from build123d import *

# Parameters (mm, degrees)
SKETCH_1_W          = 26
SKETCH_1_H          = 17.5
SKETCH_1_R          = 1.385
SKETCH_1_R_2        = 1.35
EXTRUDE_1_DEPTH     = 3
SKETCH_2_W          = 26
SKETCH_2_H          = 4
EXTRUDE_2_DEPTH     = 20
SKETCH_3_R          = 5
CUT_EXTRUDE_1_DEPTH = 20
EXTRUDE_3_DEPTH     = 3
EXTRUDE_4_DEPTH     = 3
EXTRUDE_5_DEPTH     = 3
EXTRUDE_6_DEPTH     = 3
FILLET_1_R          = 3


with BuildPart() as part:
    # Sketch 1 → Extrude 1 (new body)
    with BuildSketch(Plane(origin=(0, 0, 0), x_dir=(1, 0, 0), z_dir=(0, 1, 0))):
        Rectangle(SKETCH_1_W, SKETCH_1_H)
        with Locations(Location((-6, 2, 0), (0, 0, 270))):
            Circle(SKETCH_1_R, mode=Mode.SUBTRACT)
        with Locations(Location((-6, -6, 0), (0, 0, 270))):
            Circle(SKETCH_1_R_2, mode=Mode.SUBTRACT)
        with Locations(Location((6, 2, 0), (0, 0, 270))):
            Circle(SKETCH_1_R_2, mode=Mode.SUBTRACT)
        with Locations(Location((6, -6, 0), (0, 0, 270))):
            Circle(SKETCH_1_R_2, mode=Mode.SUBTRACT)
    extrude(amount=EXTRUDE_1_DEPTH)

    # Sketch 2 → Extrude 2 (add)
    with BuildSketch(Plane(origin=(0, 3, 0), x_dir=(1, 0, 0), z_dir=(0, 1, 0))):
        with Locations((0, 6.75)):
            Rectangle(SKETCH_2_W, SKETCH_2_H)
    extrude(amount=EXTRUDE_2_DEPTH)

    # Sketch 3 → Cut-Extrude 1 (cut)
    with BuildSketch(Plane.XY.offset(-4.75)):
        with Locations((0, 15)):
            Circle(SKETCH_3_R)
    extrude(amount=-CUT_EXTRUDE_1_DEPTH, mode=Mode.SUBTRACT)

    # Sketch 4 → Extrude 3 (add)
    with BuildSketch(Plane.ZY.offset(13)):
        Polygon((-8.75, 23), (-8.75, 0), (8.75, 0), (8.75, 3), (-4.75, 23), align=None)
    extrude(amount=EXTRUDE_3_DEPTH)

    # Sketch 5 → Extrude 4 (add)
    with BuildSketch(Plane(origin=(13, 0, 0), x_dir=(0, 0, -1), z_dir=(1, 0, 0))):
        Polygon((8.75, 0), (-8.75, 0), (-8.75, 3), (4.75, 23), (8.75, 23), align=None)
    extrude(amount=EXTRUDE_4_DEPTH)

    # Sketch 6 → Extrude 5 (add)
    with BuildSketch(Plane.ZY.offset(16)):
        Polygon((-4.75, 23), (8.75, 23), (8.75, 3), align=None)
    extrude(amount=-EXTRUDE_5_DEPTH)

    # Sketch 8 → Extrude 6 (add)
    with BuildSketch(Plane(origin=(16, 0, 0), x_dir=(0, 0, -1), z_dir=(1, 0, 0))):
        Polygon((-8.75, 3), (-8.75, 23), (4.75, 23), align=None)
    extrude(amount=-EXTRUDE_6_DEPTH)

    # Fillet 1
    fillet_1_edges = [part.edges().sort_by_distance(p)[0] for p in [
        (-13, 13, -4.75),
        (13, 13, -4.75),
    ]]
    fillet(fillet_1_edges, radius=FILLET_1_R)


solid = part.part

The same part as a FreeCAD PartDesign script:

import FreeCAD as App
import Part
import Sketcher
Q = App.Units.Quantity


def edges_at(feature, points):
    """Names of the edges that pass closest to the given points."""
    edges = feature.Shape.Edges
    near = lambda p: min(range(len(edges)), key=lambda i: edges[i].distToShape(Part.Vertex(*p))[0])
    return sorted({f"Edge{near(p) + 1}" for p in points})


def add_polygon(sketch, points):
    """Adds a closed chain of lines whose ends are joined by coincident constraints."""
    first, n = sketch.GeometryCount, len(points)
    for a, b in zip(points, points[1:] + points[:1]):
        sketch.addGeometry(Part.LineSegment(App.Vector(*a, 0), App.Vector(*b, 0)), False)
    for i in range(n):
        sketch.addConstraint(Sketcher.Constraint("Coincident", first + i, 2, first + (i + 1) % n, 1))

doc = App.newDocument("Part")
body = doc.addObject("PartDesign::Body", "Body")

sketch1 = body.newObject("Sketcher::SketchObject", "Sketch")
sketch1.AttachmentSupport = (doc.getObject("XZ_Plane"), [""])
sketch1.MapMode = "FlatFace"
add_polygon(sketch1, [(-13, -8.8), (-13, 8.8), (13, 8.8), (13, -8.8)])
sketch1.addGeometry(Part.Circle(App.Vector(-6, 6, 0), App.Vector(0, 0, 1), 1.4), False)
sketch1.addGeometry(Part.Circle(App.Vector(6, 6, 0), App.Vector(0, 0, 1), 1.4), False)
sketch1.addGeometry(Part.Circle(App.Vector(-6, -2, 0), App.Vector(0, 0, 1), 1.4), False)
sketch1.addGeometry(Part.Circle(App.Vector(6, -2, 0), App.Vector(0, 0, 1), 1.4), False)
sketch1.addConstraint([
    Sketcher.Constraint("Vertical", 0),
    Sketcher.Constraint("Horizontal", 1),
    Sketcher.Constraint("Vertical", 2),
    Sketcher.Constraint("Horizontal", 3),
    Sketcher.Constraint("Equal", 4, 5),
    Sketcher.Constraint("Equal", 5, 7),
    Sketcher.Constraint("Symmetric", 0, 2, 2, 2, -1, 1),
    Sketcher.Constraint("Symmetric", 4, 3, 5, 3, -2),
    Sketcher.Constraint("Symmetric", 6, 3, 7, 3, -2),
    Sketcher.Constraint("Vertical", 4, 3, 6, 3),
    Sketcher.Constraint("Diameter", 4, Q("2.7 mm")),
    Sketcher.Constraint("Diameter", 6, Q("2.77 mm")),
    Sketcher.Constraint("DistanceX", 1, 1, 1, 2, Q("26 mm")),
    Sketcher.Constraint("DistanceY", 0, 1, 0, 2, Q("17.5 mm")),
    Sketcher.Constraint("DistanceX", 4, 3, -1, 1, Q("6 mm")),
    Sketcher.Constraint("DistanceY", -1, 1, 4, 3, Q("6 mm")),
    Sketcher.Constraint("DistanceY", 6, 3, -1, 1, Q("2 mm")),
])
pad1 = body.newObject("PartDesign::Pad", "Pad")
pad1.Profile = sketch1
pad1.Length = 3
pad1.Reversed = True

sketch2 = body.newObject("Sketcher::SketchObject", "Sketch001")
sketch2.AttachmentSupport = (doc.getObject("XZ_Plane"), [""])
sketch2.MapMode = "FlatFace"
sketch2.AttachmentOffset = App.Placement(App.Vector(0, 0, -3), App.Rotation())
add_polygon(sketch2, [(-13, -8.8), (-13, -4.8), (13, -4.8), (13, -8.8)])
sketch2.addConstraint([
    Sketcher.Constraint("Vertical", 0),
    Sketcher.Constraint("Horizontal", 1),
    Sketcher.Constraint("Vertical", 2),
    Sketcher.Constraint("Horizontal", 3),
    Sketcher.Constraint("DistanceX", 1, 1, 1, 2, Q("26 mm")),
    Sketcher.Constraint("DistanceY", 0, 1, 0, 2, Q("4 mm")),
    Sketcher.Constraint("DistanceX", 0, 2, -1, 1, Q("13 mm")),
    Sketcher.Constraint("DistanceY", 0, 2, -1, 1, Q("4.75 mm")),
])
pad2 = body.newObject("PartDesign::Pad", "Pad001")
pad2.Profile = sketch2
pad2.Length = 20
pad2.Reversed = True

sketch3 = body.newObject("Sketcher::SketchObject", "Sketch002")
sketch3.AttachmentSupport = (doc.getObject("XY_Plane"), [""])
sketch3.MapMode = "FlatFace"
sketch3.AttachmentOffset = App.Placement(App.Vector(0, 0, -4.75), App.Rotation())
sketch3.addGeometry(Part.Circle(App.Vector(0, 15, 0), App.Vector(0, 0, 1), 5), False)
sketch3.addConstraint([
    Sketcher.Constraint("PointOnObject", 0, 3, -2),
    Sketcher.Constraint("Diameter", 0, Q("10 mm")),
    Sketcher.Constraint("DistanceY", -1, 1, 0, 3, Q("15 mm")),
])
pocket1 = body.newObject("PartDesign::Pocket", "Pocket")
pocket1.Profile = sketch3
pocket1.Length = 20

sketch4 = body.newObject("Sketcher::SketchObject", "Sketch003")
sketch4.AttachmentSupport = (doc.getObject("YZ_Plane"), [""])
sketch4.MapMode = "FlatFace"
sketch4.AttachmentOffset = App.Placement(App.Vector(0, 0, -13), App.Rotation())
add_polygon(sketch4, [(23, -8.8), (0, -8.8), (0, 8.8), (3, 8.8), (23, -4.8)])
sketch4.addConstraint([
    Sketcher.Constraint("Horizontal", 0),
    Sketcher.Constraint("Vertical", 1),
    Sketcher.Constraint("Horizontal", 2),
    Sketcher.Constraint("Vertical", 4),
    Sketcher.Constraint("Symmetric", 0, 2, 1, 2, -1, 1),
    Sketcher.Constraint("DistanceX", 0, 2, 0, 1, Q("23 mm")),
    Sketcher.Constraint("DistanceX", 2, 1, 2, 2, Q("3 mm")),
    Sketcher.Constraint("DistanceY", 4, 2, 4, 1, Q("4 mm")),
    Sketcher.Constraint("DistanceY", 1, 1, 1, 2, Q("17.5 mm")),
])
pad3 = body.newObject("PartDesign::Pad", "Pad002")
pad3.Profile = sketch4
pad3.Length = 3
pad3.Reversed = True

sketch5 = body.newObject("Sketcher::SketchObject", "Sketch004")
sketch5.AttachmentSupport = (doc.getObject("YZ_Plane"), [""])
sketch5.MapMode = "FlatFace"
sketch5.AttachmentOffset = App.Placement(App.Vector(0, 0, 13), App.Rotation())
add_polygon(sketch5, [(0, 8.8), (0, -8.8), (23, -8.8), (23, -4.8), (3, 8.8)])
sketch5.addConstraint([
    Sketcher.Constraint("Vertical", 0),
    Sketcher.Constraint("Horizontal", 1),
    Sketcher.Constraint("Vertical", 2),
    Sketcher.Constraint("Horizontal", 4),
    Sketcher.Constraint("Symmetric", 0, 2, 4, 2, -1, 1),
    Sketcher.Constraint("DistanceX", 1, 1, 1, 2, Q("23 mm")),
    Sketcher.Constraint("DistanceX", 4, 2, 4, 1, Q("3 mm")),
    Sketcher.Constraint("DistanceY", 2, 1, 2, 2, Q("4 mm")),
    Sketcher.Constraint("DistanceY", 0, 2, 0, 1, Q("17.5 mm")),
])
pad4 = body.newObject("PartDesign::Pad", "Pad003")
pad4.Profile = sketch5
pad4.Length = 3

sketch6 = body.newObject("Sketcher::SketchObject", "Sketch005")
sketch6.AttachmentSupport = (doc.getObject("YZ_Plane"), [""])
sketch6.MapMode = "FlatFace"
sketch6.AttachmentOffset = App.Placement(App.Vector(0, 0, -16), App.Rotation())
add_polygon(sketch6, [(23, 9), (23, -5), (3, 9)])
sketch6.addConstraint([
    Sketcher.Constraint("Vertical", 0),
    Sketcher.Constraint("Horizontal", 2),
    Sketcher.Constraint("DistanceX", 2, 1, 2, 2, Q("20 mm")),
    Sketcher.Constraint("DistanceY", 0, 2, 0, 1, Q("13.5 mm")),
    Sketcher.Constraint("DistanceX", -1, 1, 0, 2, Q("23 mm")),
    Sketcher.Constraint("DistanceY", 0, 2, -1, 1, Q("4.75 mm")),
])
pad5 = body.newObject("PartDesign::Pad", "Pad004")
pad5.Profile = sketch6
pad5.Length = 3

sketch7 = body.newObject("Sketcher::SketchObject", "Sketch006")
sketch7.AttachmentSupport = (doc.getObject("YZ_Plane"), [""])
sketch7.MapMode = "FlatFace"
sketch7.AttachmentOffset = App.Placement(App.Vector(0, 0, 16), App.Rotation())
add_polygon(sketch7, [(23, 9), (3, 9), (23, -5)])
sketch7.addConstraint([
    Sketcher.Constraint("Horizontal", 0),
    Sketcher.Constraint("Vertical", 2),
    Sketcher.Constraint("DistanceX", 0, 2, 0, 1, Q("20 mm")),
    Sketcher.Constraint("DistanceY", 2, 1, 2, 2, Q("13.5 mm")),
    Sketcher.Constraint("DistanceX", -1, 1, 0, 2, Q("3 mm")),
    Sketcher.Constraint("DistanceY", -1, 1, 0, 2, Q("8.75 mm")),
])
pad6 = body.newObject("PartDesign::Pad", "Pad005")
pad6.Profile = sketch7
pad6.Length = 3
pad6.Reversed = True
doc.recompute()

fillet = body.newObject("PartDesign::Fillet", "Fillet")
fillet.Base = (pad6, edges_at(pad6, [(-13, 13, -4.75), (13, 13, -4.75)]))
fillet.Radius = 3

doc.recompute()
